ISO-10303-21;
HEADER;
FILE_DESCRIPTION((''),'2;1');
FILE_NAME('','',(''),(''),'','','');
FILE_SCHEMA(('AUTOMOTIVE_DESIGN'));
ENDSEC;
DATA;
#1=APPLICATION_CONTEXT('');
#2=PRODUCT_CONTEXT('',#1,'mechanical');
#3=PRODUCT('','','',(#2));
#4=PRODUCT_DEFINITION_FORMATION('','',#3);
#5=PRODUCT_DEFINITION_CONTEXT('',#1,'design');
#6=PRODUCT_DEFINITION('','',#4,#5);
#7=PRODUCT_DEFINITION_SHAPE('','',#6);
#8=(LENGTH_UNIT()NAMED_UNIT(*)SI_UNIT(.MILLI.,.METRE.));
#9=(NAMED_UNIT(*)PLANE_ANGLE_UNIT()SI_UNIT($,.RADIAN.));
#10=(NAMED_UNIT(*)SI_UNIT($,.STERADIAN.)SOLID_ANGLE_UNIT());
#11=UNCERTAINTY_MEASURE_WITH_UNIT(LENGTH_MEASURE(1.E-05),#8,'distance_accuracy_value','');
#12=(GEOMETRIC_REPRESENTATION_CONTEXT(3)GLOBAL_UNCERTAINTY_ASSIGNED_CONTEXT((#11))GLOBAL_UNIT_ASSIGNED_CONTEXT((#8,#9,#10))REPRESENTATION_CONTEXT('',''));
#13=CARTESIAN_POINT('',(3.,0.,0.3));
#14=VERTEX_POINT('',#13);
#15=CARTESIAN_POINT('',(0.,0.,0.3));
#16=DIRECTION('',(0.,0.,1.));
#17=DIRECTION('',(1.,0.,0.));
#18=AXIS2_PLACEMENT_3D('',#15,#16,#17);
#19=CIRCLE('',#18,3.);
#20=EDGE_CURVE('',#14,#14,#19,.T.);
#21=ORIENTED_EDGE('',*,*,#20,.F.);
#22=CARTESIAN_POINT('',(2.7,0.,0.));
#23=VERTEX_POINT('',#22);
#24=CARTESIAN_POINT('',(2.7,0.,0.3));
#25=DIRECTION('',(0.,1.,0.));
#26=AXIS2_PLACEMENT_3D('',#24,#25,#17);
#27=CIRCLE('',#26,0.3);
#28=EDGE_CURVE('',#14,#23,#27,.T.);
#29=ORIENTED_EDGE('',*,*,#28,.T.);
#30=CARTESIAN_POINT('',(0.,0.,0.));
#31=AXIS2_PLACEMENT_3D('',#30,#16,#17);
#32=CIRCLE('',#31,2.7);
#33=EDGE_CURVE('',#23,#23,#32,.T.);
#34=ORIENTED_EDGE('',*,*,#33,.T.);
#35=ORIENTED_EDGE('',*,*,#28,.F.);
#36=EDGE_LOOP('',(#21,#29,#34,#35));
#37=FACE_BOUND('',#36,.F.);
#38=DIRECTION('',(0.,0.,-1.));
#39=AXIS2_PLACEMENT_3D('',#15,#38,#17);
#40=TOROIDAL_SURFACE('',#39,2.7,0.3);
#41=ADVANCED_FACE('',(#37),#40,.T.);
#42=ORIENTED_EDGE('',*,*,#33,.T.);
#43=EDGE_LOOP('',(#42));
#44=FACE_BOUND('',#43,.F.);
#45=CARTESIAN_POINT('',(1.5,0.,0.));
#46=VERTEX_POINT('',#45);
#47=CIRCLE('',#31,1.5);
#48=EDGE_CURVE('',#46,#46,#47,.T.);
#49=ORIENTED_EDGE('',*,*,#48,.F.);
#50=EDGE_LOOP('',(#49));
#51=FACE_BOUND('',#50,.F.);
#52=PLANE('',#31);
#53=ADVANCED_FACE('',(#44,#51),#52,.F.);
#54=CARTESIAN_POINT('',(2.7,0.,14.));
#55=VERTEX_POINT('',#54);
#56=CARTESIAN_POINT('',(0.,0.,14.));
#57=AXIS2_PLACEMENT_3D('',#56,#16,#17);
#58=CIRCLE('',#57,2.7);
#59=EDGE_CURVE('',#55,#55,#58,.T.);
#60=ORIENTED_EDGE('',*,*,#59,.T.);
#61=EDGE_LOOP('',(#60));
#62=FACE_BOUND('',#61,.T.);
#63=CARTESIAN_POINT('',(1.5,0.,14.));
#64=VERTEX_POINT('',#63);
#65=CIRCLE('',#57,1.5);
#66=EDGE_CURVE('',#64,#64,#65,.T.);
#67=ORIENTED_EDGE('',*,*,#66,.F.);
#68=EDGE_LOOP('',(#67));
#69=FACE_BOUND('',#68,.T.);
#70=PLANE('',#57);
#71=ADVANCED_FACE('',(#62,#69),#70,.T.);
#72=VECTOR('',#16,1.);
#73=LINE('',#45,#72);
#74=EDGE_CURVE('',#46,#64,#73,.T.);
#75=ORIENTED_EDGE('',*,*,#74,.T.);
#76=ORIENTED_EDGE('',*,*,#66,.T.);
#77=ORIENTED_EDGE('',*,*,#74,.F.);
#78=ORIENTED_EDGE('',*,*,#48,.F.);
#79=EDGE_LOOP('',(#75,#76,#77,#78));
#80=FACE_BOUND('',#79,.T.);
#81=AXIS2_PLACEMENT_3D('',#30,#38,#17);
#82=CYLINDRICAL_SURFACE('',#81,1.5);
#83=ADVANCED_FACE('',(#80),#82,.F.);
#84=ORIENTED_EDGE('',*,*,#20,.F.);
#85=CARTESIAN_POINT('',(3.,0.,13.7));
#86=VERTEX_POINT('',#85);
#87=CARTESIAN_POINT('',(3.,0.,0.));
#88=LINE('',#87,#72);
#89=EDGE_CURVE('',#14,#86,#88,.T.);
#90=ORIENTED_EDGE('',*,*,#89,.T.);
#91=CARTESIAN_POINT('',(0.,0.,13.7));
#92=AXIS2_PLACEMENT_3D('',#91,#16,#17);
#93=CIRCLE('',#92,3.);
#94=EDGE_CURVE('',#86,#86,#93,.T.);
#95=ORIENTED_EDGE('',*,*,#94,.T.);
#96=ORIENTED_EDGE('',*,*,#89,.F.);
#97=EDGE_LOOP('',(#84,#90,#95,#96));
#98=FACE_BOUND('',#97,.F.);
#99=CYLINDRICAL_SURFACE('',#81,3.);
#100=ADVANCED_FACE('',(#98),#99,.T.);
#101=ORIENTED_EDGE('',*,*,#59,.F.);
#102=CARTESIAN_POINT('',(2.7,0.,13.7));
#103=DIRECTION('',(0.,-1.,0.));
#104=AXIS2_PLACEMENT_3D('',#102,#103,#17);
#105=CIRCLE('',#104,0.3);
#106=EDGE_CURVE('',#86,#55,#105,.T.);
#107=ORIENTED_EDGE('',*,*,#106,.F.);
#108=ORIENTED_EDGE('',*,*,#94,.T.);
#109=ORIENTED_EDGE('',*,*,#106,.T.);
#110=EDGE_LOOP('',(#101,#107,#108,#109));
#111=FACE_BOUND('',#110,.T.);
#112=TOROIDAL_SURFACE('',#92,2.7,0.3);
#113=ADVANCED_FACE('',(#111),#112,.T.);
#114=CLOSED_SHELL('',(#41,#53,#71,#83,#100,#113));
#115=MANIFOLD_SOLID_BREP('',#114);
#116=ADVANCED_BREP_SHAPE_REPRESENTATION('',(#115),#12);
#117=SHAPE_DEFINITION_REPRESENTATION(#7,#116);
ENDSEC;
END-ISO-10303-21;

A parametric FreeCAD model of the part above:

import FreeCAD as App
import Part
import Sketcher


def edges_at(feature, points):
    """Names of the edges that pass closest to the given points."""
    edges = feature.Shape.Edges
    near = lambda p: min(range(len(edges)), key=lambda i: edges[i].distToShape(Part.Vertex(*p))[0])
    return sorted({f"Edge{near(p) + 1}" for p in points})

doc = App.newDocument("Part")
body = doc.addObject("PartDesign::Body", "Body")

sketch1 = doc.addObject("Sketcher::SketchObject", "Sketch")
body.addObject(sketch1)
sketch1.AttachmentSupport = (doc.XY_Plane, [""])
sketch1.MapMode = "FlatFace"
sketch1.addGeometry([
    Part.Circle(App.Vector(0, 0, 0), App.Vector(0, 0, 1), 3),
    Part.Circle(App.Vector(0, 0, 0), App.Vector(0, 0, 1), 1.5),
], False)
sketch1.addConstraint([
    Sketcher.Constraint("Coincident", 0, 3, -1, 1),
    Sketcher.Constraint("Coincident", 1, 3, -1, 1),
    Sketcher.Constraint("Diameter", 0, 6.0),
    Sketcher.Constraint("Diameter", 1, 3.0),
])
pad1 = doc.addObject("PartDesign::Pad", "Pad")
body.addObject(pad1)
pad1.Profile = sketch1
pad1.Length = 14
doc.recompute()

fillet = doc.addObject("PartDesign::Fillet", "Fillet")
body.addObject(fillet)
fillet.Base = (pad1, edges_at(pad1, [(-3, 0, 14), (-3, 0, 0)]))
fillet.Radius = 0.3

doc.recompute()
